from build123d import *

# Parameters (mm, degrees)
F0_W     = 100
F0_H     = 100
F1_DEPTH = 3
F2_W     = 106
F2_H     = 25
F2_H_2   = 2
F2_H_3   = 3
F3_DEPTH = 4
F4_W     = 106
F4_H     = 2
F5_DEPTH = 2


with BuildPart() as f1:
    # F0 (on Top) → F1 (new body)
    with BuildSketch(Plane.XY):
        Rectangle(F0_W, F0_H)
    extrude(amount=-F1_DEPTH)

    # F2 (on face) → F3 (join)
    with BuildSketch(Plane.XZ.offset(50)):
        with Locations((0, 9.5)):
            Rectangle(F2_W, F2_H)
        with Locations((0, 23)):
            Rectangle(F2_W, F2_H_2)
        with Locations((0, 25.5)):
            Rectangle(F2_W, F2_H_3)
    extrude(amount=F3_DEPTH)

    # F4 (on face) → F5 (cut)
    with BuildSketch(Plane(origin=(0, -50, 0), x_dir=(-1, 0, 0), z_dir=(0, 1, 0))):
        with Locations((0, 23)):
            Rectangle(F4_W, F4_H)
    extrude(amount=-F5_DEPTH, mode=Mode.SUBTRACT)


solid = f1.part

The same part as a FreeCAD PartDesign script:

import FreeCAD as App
import Part
import Sketcher
from FreeCAD import Vector


def add_polygon(sketch, points):
    """Adds a closed chain of lines whose ends are joined by coincident constraints."""
    first, n = sketch.GeometryCount, len(points)
    for a, b in zip(points, points[1:] + points[:1]):
        sketch.addGeometry(Part.LineSegment(App.Vector(*a, 0), App.Vector(*b, 0)), False)
    for i in range(n):
        sketch.addConstraint(Sketcher.Constraint("Coincident", first + i, 2, first + (i + 1) % n, 1))

doc = App.newDocument("Part")
body = doc.addObject("PartDesign::Body", "Body")

sketch1 = body.newObject("Sketcher::SketchObject", "Sketch")
sketch1.AttachmentSupport = (doc.getObject("XY_Plane"), [""])
sketch1.MapMode = "FlatFace"
add_polygon(sketch1, [(-50, 50), (-50, -50), (50, -50), (50, 50)])
sketch1.addConstraint([
    Sketcher.Constraint("Vertical", 0),
    Sketcher.Constraint("Horizontal", 1),
    Sketcher.Constraint("Vertical", 2),
    Sketcher.Constraint("Horizontal", 3),
    Sketcher.Constraint("Symmetric", 0, 2, 2, 2, -1, 1),
    Sketcher.Constraint("Equal", 3, 0),
    Sketcher.Constraint("DistanceX", 1, 1, 1, 2, 100.0),
])
pad1 = body.newObject("PartDesign::Pad", "Pad")
pad1.Profile = sketch1
pad1.Length = 3
pad1.Reversed = True

sketch2 = body.newObject("Sketcher::SketchObject", "Sketch001")
sketch2.AttachmentSupport = (doc.getObject("XZ_Plane"), [""])
sketch2.MapMode = "FlatFace"
sketch2.AttachmentOffset = App.Placement(Vector(0, 0, 50), App.Rotation())
add_polygon(sketch2, [(-53, -3), (53, -3), (53, 27), (-53, 27)])
sketch2.addConstraint([
    Sketcher.Constraint("Horizontal", 0),
    Sketcher.Constraint("Vertical", 1),
    Sketcher.Constraint("Horizontal", 2),
    Sketcher.Constraint("Vertical", 3),
    Sketcher.Constraint("DistanceX", 0, 1, 0, 2, 106.0),
    Sketcher.Constraint("DistanceY", 1, 1, 1, 2, 30.0),
    Sketcher.Constraint("DistanceX", -1, 1, 0, 2, 53.0),
    Sketcher.Constraint("DistanceY", 0, 2, -1, 1, 3.0),
])
pad2 = body.newObject("PartDesign::Pad", "Pad001")
pad2.Profile = sketch2
pad2.Length = 4

sketch3 = body.newObject("Sketcher::SketchObject", "Sketch002")
sketch3.AttachmentSupport = (doc.getObject("XZ_Plane"), [""])
sketch3.MapMode = "FlatFace"
sketch3.AttachmentOffset = App.Placement(Vector(0, 0, 50), App.Rotation())
add_polygon(sketch3, [(53, 24), (53, 22), (-53, 22), (-53, 24)])
sketch3.addConstraint([
    Sketcher.Constraint("Vertical", 0),
    Sketcher.Constraint("Horizontal", 1),
    Sketcher.Constraint("Vertical", 2),
    Sketcher.Constraint("Horizontal", 3),
    Sketcher.Constraint("DistanceX", 1, 2, 1, 1, 106.0),
    Sketcher.Constraint("DistanceY", 0, 2, 0, 1, 2.0),
    Sketcher.Constraint("DistanceX", -1, 1, 0, 2, 53.0),
    Sketcher.Constraint("DistanceY", -1, 1, 0, 2, 22.0),
])
pocket1 = body.newObject("PartDesign::Pocket", "Pocket")
pocket1.Profile = sketch3
pocket1.Length = 2
pocket1.Reversed = True

doc.recompute()
